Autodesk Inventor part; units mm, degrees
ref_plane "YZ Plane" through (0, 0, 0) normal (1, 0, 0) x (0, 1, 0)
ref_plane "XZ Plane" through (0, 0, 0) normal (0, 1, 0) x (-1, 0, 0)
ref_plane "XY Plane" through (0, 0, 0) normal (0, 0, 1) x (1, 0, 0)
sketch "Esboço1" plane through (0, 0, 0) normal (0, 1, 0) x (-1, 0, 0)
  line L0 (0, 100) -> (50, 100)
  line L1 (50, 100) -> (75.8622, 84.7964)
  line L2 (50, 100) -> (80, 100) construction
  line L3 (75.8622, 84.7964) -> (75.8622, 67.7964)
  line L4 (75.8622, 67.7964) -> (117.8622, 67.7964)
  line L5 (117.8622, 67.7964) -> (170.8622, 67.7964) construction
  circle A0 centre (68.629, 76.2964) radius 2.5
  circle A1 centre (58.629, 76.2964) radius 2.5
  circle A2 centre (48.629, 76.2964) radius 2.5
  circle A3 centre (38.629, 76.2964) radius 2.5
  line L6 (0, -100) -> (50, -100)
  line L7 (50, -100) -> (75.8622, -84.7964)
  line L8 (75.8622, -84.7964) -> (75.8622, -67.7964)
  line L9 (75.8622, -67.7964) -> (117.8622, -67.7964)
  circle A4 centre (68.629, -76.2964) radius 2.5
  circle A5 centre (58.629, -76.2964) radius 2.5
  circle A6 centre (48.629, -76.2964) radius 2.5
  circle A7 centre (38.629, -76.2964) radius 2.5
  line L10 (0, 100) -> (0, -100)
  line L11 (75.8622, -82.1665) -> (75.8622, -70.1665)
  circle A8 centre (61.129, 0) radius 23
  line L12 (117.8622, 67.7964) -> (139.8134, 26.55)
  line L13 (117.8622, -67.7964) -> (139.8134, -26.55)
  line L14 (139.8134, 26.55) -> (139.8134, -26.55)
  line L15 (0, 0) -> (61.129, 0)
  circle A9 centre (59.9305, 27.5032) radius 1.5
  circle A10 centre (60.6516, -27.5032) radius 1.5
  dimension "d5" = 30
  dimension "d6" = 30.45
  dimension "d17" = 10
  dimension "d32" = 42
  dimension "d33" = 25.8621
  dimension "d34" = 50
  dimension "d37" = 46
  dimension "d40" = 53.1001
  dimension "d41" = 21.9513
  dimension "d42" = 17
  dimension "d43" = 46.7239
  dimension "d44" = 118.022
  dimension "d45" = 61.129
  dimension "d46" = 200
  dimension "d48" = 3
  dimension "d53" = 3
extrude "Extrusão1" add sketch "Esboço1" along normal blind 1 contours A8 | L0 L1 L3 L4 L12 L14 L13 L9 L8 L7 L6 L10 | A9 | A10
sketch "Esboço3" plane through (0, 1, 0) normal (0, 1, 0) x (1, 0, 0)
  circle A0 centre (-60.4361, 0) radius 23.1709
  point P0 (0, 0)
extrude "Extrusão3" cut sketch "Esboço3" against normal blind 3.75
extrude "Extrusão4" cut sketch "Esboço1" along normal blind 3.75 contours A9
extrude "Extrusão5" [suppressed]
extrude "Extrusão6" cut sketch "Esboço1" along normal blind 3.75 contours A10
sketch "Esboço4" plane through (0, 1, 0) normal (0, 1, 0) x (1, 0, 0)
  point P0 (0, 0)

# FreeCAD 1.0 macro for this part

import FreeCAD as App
import Part
import Sketcher
Q = App.Units.Quantity


def add_polygon(sketch, points):
    """Adds a closed chain of lines whose ends are joined by coincident constraints."""
    first, n = sketch.GeometryCount, len(points)
    for a, b in zip(points, points[1:] + points[:1]):
        sketch.addGeometry(Part.LineSegment(App.Vector(*a, 0), App.Vector(*b, 0)), False)
    for i in range(n):
        sketch.addConstraint(Sketcher.Constraint("Coincident", first + i, 2, first + (i + 1) % n, 1))

doc = App.newDocument("Part")
body = doc.addObject("PartDesign::Body", "Body")

# Sketch on XZ plane
sketch1 = body.newObject("Sketcher::SketchObject", "Sketch")
sketch1.AttachmentSupport = (doc.getObject("XZ_Plane"), [""])
sketch1.MapMode = "FlatFace"
add_polygon(sketch1, [(-50, 100), (0, 100), (0, 0), (0, -100), (-50, -100), (-75.9, -84.8), (-75.9, -67.8), (-117.9, -67.8), (-139.8, -26.6), (-139.8, 26.6), (-117.9, 67.8), (-75.9, 67.8), (-75.9, 84.8)])  # lines 0-12
sketch1.addGeometry(Part.Circle(App.Vector(-38.6, -76.3, 0), App.Vector(0, 0, 1), 2.5), False)  # 13
sketch1.addGeometry(Part.Circle(App.Vector(-48.6, -76.3, 0), App.Vector(0, 0, 1), 2.5), False)  # 14
sketch1.addGeometry(Part.Circle(App.Vector(-58.6, -76.3, 0), App.Vector(0, 0, 1), 2.5), False)  # 15
sketch1.addGeometry(Part.Circle(App.Vector(-68.6, -76.3, 0), App.Vector(0, 0, 1), 2.5), False)  # 16
sketch1.addGeometry(Part.Circle(App.Vector(-68.6, 76.3, 0), App.Vector(0, 0, 1), 2.5), False)  # 17
sketch1.addGeometry(Part.Circle(App.Vector(-38.6, 76.3, 0), App.Vector(0, 0, 1), 2.5), False)  # 18
sketch1.addGeometry(Part.Circle(App.Vector(-48.6, 76.3, 0), App.Vector(0, 0, 1), 2.5), False)  # 19
sketch1.addGeometry(Part.Circle(App.Vector(-58.6, 76.3, 0), App.Vector(0, 0, 1), 2.5), False)  # 20
sketch1.addConstraint([
    Sketcher.Constraint("Horizontal", 0),
    Sketcher.Constraint("Vertical", 1),
    Sketcher.Constraint("Vertical", 2),
    Sketcher.Constraint("Horizontal", 3),
    Sketcher.Constraint("Vertical", 5),
    Sketcher.Constraint("Horizontal", 6),
    Sketcher.Constraint("Vertical", 8),
    Sketcher.Constraint("Horizontal", 10),
    Sketcher.Constraint("Vertical", 11),
    Sketcher.Constraint("Coincident", 1, 2, -1, 1),
    Sketcher.Constraint("Equal", 13, 14),
    Sketcher.Constraint("Equal", 14, 15),
    Sketcher.Constraint("Equal", 15, 16),
    Sketcher.Constraint("Equal", 16, 17),
    Sketcher.Constraint("Equal", 17, 18),
    Sketcher.Constraint("Equal", 18, 19),
    Sketcher.Constraint("Equal", 19, 20),
    Sketcher.Constraint("Symmetric", 16, 3, 17, 3, -1),
    Sketcher.Constraint("Symmetric", 13, 3, 18, 3, -1),
    Sketcher.Constraint("Symmetric", 14, 3, 19, 3, -1),
    Sketcher.Constraint("Symmetric", 15, 3, 20, 3, -1),
    Sketcher.Constraint("Symmetric", 6, 2, 9, 2, -1),
    Sketcher.Constraint("Symmetric", 4, 2, 11, 2, -1),
    Sketcher.Constraint("Symmetric", 3, 2, 12, 2, -1),
    Sketcher.Constraint("Horizontal", 13, 3, 14, 3),
    Sketcher.Constraint("Horizontal", 14, 3, 15, 3),
    Sketcher.Constraint("Horizontal", 15, 3, 16, 3),
    Sketcher.Constraint("Equal", 7, 9),
    Sketcher.Constraint("DistanceX", 0, 1, 0, 2, Q("50 mm")),
    Sketcher.Constraint("DistanceX", 6, 2, 6, 1, Q("42 mm")),
    Sketcher.Constraint("DistanceY", 5, 1, 5, 2, Q("17 mm")),
    Sketcher.Constraint("Distance", 4, Q("30 mm")),
    Sketcher.Constraint("Diameter", 13, Q("5 mm")),
    Sketcher.Constraint("DistanceY", 8, 1, 8, 2, Q("53.1 mm")),
    Sketcher.Constraint("DistanceX", 14, 3, 13, 3, Q("10 mm")),
    Sketcher.Constraint("DistanceX", 15, 3, 14, 3, Q("10 mm")),
    Sketcher.Constraint("DistanceX", 16, 3, 15, 3, Q("10 mm")),
    Sketcher.Constraint("Angle", 12, Q("30.45 deg")),
    Sketcher.Constraint("DistanceY", 1, 2, 1, 1, Q("100 mm")),
    Sketcher.Constraint("Distance", 7, Q("46.7239 mm")),
    Sketcher.Constraint("DistanceY", 4, 2, 16, 3, Q("8.5 mm")),
    Sketcher.Constraint("DistanceX", 13, 3, -1, 1, Q("38.629 mm")),
])
pad1 = body.newObject("PartDesign::Pad", "Pad")
pad1.Profile = sketch1
pad1.Length = 1
pad1.Reversed = True

# Sketch on XZ plane
sketch2 = body.newObject("Sketcher::SketchObject", "Sketch001")
sketch2.AttachmentSupport = (doc.getObject("XZ_Plane"), [""])
sketch2.MapMode = "FlatFace"
sketch2.AttachmentOffset = App.Placement(App.Vector(0, 0, -1), App.Rotation())
sketch2.addGeometry(Part.Circle(App.Vector(-60, 0, 0), App.Vector(0, 0, 1), 23), False)
sketch2.addConstraint([
    Sketcher.Constraint("PointOnObject", 0, 3, -1),
    Sketcher.Constraint("Diameter", 0, Q("46.3418 mm")),
    Sketcher.Constraint("DistanceX", 0, 3, -1, 1, Q("60.436 mm")),
])
pocket1 = body.newObject("PartDesign::Pocket", "Pocket")
pocket1.Profile = sketch2
pocket1.Length = 3.75
pocket1.Reversed = True

# Sketch on XZ plane
sketch3 = body.newObject("Sketcher::SketchObject", "Sketch002")
sketch3.AttachmentSupport = (doc.getObject("XZ_Plane"), [""])
sketch3.MapMode = "FlatFace"
sketch3.addGeometry(Part.Circle(App.Vector(-59.9, 27.5, 0), App.Vector(0, 0, 1), 1.5), False)
sketch3.addConstraint([
    Sketcher.Constraint("Diameter", 0, Q("3 mm")),
    Sketcher.Constraint("DistanceX", 0, 3, -1, 1, Q("59.9305 mm")),
    Sketcher.Constraint("DistanceY", -1, 1, 0, 3, Q("27.5032 mm")),
])
pocket2 = body.newObject("PartDesign::Pocket", "Pocket001")
pocket2.Profile = sketch3
pocket2.Length = 3.75

# Sketch on XZ plane
sketch4 = body.newObject("Sketcher::SketchObject", "Sketch003")
sketch4.AttachmentSupport = (doc.getObject("XZ_Plane"), [""])
sketch4.MapMode = "FlatFace"
sketch4.addGeometry(Part.Circle(App.Vector(-60.7, -27.5, 0), App.Vector(0, 0, 1), 1.5), False)
sketch4.addConstraint([
    Sketcher.Constraint("Diameter", 0, Q("3 mm")),
    Sketcher.Constraint("DistanceX", 0, 3, -1, 1, Q("60.6516 mm")),
    Sketcher.Constraint("DistanceY", 0, 3, -1, 1, Q("27.5032 mm")),
])
pocket3 = body.newObject("PartDesign::Pocket", "Pocket002")
pocket3.Profile = sketch4
pocket3.Length = 3.75

doc.recompute()
